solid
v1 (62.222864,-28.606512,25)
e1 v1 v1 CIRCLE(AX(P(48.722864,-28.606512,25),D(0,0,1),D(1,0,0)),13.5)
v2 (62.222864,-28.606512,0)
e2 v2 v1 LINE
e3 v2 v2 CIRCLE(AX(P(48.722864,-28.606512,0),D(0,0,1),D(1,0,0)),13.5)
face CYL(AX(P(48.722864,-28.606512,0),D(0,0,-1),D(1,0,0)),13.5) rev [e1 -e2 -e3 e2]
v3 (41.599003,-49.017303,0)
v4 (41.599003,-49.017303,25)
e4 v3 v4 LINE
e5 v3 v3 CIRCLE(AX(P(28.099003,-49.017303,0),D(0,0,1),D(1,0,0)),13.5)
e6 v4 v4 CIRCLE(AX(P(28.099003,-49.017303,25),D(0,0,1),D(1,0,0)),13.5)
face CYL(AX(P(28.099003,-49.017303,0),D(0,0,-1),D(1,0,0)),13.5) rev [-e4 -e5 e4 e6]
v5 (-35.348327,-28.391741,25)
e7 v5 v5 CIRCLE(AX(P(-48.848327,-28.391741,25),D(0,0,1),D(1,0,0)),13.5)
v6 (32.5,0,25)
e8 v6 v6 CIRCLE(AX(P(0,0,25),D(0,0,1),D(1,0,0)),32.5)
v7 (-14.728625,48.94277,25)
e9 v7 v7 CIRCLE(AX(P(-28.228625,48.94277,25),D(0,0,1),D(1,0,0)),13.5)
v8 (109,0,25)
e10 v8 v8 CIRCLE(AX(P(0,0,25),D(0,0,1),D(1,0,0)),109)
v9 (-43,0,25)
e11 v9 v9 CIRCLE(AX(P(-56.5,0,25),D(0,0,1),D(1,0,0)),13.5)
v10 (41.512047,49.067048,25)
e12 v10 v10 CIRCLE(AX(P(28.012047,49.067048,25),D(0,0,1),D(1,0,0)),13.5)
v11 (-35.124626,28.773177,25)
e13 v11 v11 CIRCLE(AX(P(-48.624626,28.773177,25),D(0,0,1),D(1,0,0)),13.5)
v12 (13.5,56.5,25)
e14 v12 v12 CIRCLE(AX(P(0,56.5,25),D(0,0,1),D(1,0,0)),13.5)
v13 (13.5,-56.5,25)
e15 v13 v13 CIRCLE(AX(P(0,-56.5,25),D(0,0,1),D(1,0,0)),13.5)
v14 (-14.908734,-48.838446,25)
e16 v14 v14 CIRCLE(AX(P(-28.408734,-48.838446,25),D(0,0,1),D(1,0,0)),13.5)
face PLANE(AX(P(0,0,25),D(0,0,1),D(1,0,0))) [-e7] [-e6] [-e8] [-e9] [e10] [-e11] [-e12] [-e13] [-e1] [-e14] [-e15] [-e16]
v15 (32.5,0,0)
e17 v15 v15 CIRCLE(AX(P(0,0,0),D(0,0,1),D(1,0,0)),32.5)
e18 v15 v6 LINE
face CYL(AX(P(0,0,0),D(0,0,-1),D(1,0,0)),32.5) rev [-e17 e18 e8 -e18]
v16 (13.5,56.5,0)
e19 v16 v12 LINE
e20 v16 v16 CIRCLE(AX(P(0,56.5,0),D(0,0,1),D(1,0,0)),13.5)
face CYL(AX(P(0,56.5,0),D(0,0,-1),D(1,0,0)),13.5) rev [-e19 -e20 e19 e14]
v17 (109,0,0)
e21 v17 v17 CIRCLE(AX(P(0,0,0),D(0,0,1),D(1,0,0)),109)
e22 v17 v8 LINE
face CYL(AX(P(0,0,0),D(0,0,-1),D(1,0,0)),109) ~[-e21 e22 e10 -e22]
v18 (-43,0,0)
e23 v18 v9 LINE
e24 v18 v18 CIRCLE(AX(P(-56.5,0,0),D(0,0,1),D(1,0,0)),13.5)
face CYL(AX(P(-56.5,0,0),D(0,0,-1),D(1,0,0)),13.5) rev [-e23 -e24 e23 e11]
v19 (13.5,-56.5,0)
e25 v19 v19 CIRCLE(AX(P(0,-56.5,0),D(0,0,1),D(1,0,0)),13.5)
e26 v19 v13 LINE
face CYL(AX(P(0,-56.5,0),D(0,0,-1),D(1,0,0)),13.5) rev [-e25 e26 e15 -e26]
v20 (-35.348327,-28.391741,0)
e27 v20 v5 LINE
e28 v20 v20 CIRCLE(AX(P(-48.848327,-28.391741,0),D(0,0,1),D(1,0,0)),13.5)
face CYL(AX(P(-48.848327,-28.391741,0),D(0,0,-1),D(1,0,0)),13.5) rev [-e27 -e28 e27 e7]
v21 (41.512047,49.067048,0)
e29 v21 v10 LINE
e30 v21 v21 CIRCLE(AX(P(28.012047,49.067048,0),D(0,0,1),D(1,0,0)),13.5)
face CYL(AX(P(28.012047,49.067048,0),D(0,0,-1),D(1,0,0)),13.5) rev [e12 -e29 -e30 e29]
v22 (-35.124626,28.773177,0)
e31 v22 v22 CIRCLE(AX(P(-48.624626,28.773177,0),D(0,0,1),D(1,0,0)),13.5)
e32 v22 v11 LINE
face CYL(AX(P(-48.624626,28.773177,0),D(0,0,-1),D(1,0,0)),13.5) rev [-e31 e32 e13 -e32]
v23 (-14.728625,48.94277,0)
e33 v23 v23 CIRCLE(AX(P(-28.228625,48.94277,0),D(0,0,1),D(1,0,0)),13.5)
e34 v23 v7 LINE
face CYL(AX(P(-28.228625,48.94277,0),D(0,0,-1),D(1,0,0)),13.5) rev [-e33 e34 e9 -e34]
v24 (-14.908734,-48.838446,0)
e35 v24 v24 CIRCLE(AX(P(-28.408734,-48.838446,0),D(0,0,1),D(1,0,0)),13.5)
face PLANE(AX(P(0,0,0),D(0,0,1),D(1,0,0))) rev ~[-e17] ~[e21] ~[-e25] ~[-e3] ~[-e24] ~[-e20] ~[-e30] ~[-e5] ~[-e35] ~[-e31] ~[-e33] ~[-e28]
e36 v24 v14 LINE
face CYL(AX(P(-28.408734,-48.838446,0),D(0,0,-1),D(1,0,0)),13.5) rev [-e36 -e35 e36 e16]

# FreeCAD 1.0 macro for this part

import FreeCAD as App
import Part
import Sketcher
from FreeCAD import Vector
Q = App.Units.Quantity

doc = App.newDocument("Part")
body = doc.addObject("PartDesign::Body", "Body")

# Sketch on XY plane
sketch1 = body.newObject("Sketcher::SketchObject", "Sketch")
sketch1.AttachmentSupport = (doc.getObject("XY_Plane"), [""])
sketch1.MapMode = "FlatFace"
sketch1.addGeometry(Part.Circle(Vector(0, 0, 0), Vector(0, 0, 1), 109), False)
sketch1.addGeometry(Part.Circle(Vector(-28, -49, 0), Vector(0, 0, 1), 14), False)
sketch1.addGeometry(Part.Circle(Vector(-49, -28, 0), Vector(0, 0, 1), 14), False)
sketch1.addGeometry(Part.Circle(Vector(-56, 0, 0), Vector(0, 0, 1), 14), False)
sketch1.addGeometry(Part.Circle(Vector(0, -56, 0), Vector(0, 0, 1), 14), False)
sketch1.addGeometry(Part.Circle(Vector(28, -49, 0), Vector(0, 0, 1), 14), False)
sketch1.addGeometry(Part.Circle(Vector(49, -29, 0), Vector(0, 0, 1), 14), False)
sketch1.addGeometry(Part.Circle(Vector(-49, 29, 0), Vector(0, 0, 1), 14), False)
sketch1.addGeometry(Part.Circle(Vector(-28, 49, 0), Vector(0, 0, 1), 14), False)
sketch1.addGeometry(Part.Circle(Vector(0, 0, 0), Vector(0, 0, 1), 32), False)
sketch1.addGeometry(Part.Circle(Vector(28, 49, 0), Vector(0, 0, 1), 14), False)
sketch1.addGeometry(Part.Circle(Vector(0, 56, 0), Vector(0, 0, 1), 14), False)
sketch1.addConstraint(Sketcher.Constraint("Coincident", 0, 3, -1, 1))
sketch1.addConstraint(Sketcher.Constraint("Coincident", 9, 3, -1, 1))
sketch1.addConstraint(Sketcher.Constraint("Equal", 1, 2))
sketch1.addConstraint(Sketcher.Constraint("Equal", 2, 3))
sketch1.addConstraint(Sketcher.Constraint("Equal", 3, 4))
sketch1.addConstraint(Sketcher.Constraint("Equal", 4, 5))
sketch1.addConstraint(Sketcher.Constraint("Equal", 5, 6))
sketch1.addConstraint(Sketcher.Constraint("Equal", 6, 7))
sketch1.addConstraint(Sketcher.Constraint("Equal", 7, 8))
sketch1.addConstraint(Sketcher.Constraint("Equal", 8, 10))
sketch1.addConstraint(Sketcher.Constraint("Equal", 10, 11))
sketch1.addConstraint(Sketcher.Constraint("Symmetric", 4, 3, 11, 3, -1, 1))
sketch1.addConstraint(Sketcher.Constraint("PointOnObject", 3, 3, -1))
sketch1.addConstraint(Sketcher.Constraint("PointOnObject", 4, 3, -2))
sketch1.addConstraint(Sketcher.Constraint("Diameter", 0, Q("218 mm")))
sketch1.addConstraint(Sketcher.Constraint("Diameter", 1, Q("27 mm")))
sketch1.addConstraint(Sketcher.Constraint("Diameter", 9, Q("65 mm")))
sketch1.addConstraint(Sketcher.Constraint("DistanceX", 3, 3, -1, 1, Q("56.5 mm")))
sketch1.addConstraint(Sketcher.Constraint("DistanceY", 4, 3, -1, 1, Q("56.5 mm")))
sketch1.addConstraint(Sketcher.Constraint("DistanceX", 7, 3, 8, 3, Q("20.396001 mm")))
sketch1.addConstraint(Sketcher.Constraint("DistanceX", 2, 3, 7, 3, Q("0.223701 mm")))
sketch1.addConstraint(Sketcher.Constraint("DistanceY", 2, 3, -1, 1, Q("28.391741 mm")))
sketch1.addConstraint(Sketcher.Constraint("DistanceY", 6, 3, -1, 1, Q("28.606512 mm")))
sketch1.addConstraint(Sketcher.Constraint("DistanceY", -1, 1, 8, 3, Q("48.94277 mm")))
sketch1.addConstraint(Sketcher.Constraint("DistanceX", 2, 3, 5, 3, Q("76.94733 mm")))
sketch1.addConstraint(Sketcher.Constraint("DistanceY", 5, 3, 2, 3, Q("20.625562 mm")))
sketch1.addConstraint(Sketcher.Constraint("DistanceX", 5, 3, 6, 3, Q("20.623861 mm")))
sketch1.addConstraint(Sketcher.Constraint("DistanceX", 7, 3, 1, 3, Q("20.215892 mm")))
sketch1.addConstraint(Sketcher.Constraint("DistanceY", 7, 3, 10, 3, Q("20.293871 mm")))
sketch1.addConstraint(Sketcher.Constraint("DistanceY", 6, 3, 10, 3, Q("77.67356 mm")))
sketch1.addConstraint(Sketcher.Constraint("DistanceX", 1, 3, -1, 1, Q("28.408734 mm")))
sketch1.addConstraint(Sketcher.Constraint("DistanceY", 1, 3, -1, 1, Q("48.838446 mm")))
sketch1.addConstraint(Sketcher.Constraint("DistanceX", -1, 1, 10, 3, Q("28.012047 mm")))
pad1 = body.newObject("PartDesign::Pad", "Pad")
pad1.Profile = sketch1
pad1.Length = 25

doc.recompute()
